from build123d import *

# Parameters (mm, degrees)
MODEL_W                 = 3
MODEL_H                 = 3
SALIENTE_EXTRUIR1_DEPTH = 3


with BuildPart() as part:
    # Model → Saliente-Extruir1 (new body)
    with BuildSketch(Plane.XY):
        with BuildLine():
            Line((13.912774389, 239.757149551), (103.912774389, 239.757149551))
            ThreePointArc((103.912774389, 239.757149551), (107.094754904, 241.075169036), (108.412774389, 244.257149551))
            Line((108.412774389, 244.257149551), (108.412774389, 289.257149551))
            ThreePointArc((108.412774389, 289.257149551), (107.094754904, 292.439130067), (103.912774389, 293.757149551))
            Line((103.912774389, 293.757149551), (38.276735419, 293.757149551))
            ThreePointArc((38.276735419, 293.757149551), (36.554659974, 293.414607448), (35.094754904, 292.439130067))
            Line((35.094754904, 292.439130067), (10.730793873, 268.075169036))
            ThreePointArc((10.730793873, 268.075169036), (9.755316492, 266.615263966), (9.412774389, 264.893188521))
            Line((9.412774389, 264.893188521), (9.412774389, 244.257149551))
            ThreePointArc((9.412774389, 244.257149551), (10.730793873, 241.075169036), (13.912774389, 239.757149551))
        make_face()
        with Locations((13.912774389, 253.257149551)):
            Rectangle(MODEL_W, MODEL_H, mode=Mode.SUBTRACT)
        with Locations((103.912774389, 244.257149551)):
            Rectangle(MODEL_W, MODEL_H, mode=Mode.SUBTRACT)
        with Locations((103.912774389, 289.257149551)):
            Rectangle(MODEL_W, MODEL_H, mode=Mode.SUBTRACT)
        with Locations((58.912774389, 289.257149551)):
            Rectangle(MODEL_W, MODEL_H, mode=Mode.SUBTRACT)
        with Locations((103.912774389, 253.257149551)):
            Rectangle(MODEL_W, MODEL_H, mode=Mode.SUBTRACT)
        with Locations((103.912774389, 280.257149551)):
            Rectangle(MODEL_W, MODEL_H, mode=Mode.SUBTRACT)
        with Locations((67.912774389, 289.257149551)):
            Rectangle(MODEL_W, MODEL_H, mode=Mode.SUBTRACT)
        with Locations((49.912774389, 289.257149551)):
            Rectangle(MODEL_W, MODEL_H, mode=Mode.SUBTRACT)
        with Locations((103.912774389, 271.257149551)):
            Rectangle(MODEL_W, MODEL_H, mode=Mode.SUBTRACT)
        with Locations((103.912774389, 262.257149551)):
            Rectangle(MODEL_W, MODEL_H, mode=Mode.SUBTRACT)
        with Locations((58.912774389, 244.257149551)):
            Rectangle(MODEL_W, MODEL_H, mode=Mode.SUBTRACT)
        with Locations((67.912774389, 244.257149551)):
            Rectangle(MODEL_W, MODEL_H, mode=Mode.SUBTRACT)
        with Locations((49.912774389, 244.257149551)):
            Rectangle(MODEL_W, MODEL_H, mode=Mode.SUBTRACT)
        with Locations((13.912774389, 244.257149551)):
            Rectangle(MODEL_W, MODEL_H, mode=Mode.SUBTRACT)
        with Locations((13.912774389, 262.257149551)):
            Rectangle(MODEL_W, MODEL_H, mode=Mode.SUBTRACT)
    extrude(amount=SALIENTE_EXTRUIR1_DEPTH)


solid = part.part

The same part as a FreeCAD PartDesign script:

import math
import FreeCAD as App
import Part
import Sketcher

V = App.Vector
Q = App.Units.Quantity


def add_polygon(sketch, points):
    """Adds a closed chain of lines whose ends are joined by coincident constraints."""
    first, n = sketch.GeometryCount, len(points)
    for a, b in zip(points, points[1:] + points[:1]):
        sketch.addGeometry(Part.LineSegment(App.Vector(*a, 0), App.Vector(*b, 0)), False)
    for i in range(n):
        sketch.addConstraint(Sketcher.Constraint("Coincident", first + i, 2, first + (i + 1) % n, 1))

doc = App.newDocument("Part")
body = doc.addObject("PartDesign::Body", "Body")

# Sketch on XY plane
sketch1 = body.newObject("Sketcher::SketchObject", "Sketch")
sketch1.AttachmentSupport = (doc.getObject("XY_Plane"), [""])
sketch1.MapMode = "FlatFace"
sketch1.addGeometry(Part.LineSegment(V(13.9, 239.8, 0), V(103.9, 239.8, 0)), False)  # 0
sketch1.addGeometry(Part.ArcOfCircle(Part.Circle(V(103.9, 244.3, 0), V(0, 0, 1), 4.5), math.radians(-90), math.radians(0)), False)  # 1
sketch1.addGeometry(Part.LineSegment(V(108.4, 244.3, 0), V(108.4, 289.3, 0)), False)  # 2
sketch1.addGeometry(Part.ArcOfCircle(Part.Circle(V(103.9, 289.3, 0), V(0, 0, 1), 4.5), math.radians(0), math.radians(90)), False)  # 3
sketch1.addGeometry(Part.LineSegment(V(103.9, 293.8, 0), V(38.3, 293.8, 0)), False)  # 4
sketch1.addGeometry(Part.ArcOfCircle(Part.Circle(V(38.3, 289.3, 0), V(0, 0, 1), 4.5), math.radians(90), math.radians(135)), False)  # 5
sketch1.addGeometry(Part.LineSegment(V(35.1, 292.4, 0), V(10.7, 268.1, 0)), False)  # 6
sketch1.addGeometry(Part.ArcOfCircle(Part.Circle(V(13.9, 264.9, 0), V(0, 0, 1), 4.5), math.radians(135), math.radians(180)), False)  # 7
sketch1.addGeometry(Part.LineSegment(V(9.4, 264.9, 0), V(9.4, 244.3, 0)), False)  # 8
sketch1.addGeometry(Part.ArcOfCircle(Part.Circle(V(13.9, 244.3, 0), V(0, 0, 1), 4.5), math.radians(180), math.radians(270)), False)  # 9
add_polygon(sketch1, [(15.4, 242.8), (12.4, 242.8), (12.4, 245.8), (15.4, 245.8)])  # lines 10-13
add_polygon(sketch1, [(15.4, 251.8), (12.4, 251.8), (12.4, 254.8), (15.4, 254.8)])  # lines 14-17
add_polygon(sketch1, [(51.4, 242.8), (48.4, 242.8), (48.4, 245.8), (51.4, 245.8)])  # lines 18-21
add_polygon(sketch1, [(15.4, 260.8), (12.4, 260.8), (12.4, 263.8), (15.4, 263.8)])  # lines 22-25
add_polygon(sketch1, [(60.4, 242.8), (57.4, 242.8), (57.4, 245.8), (60.4, 245.8)])  # lines 26-29
add_polygon(sketch1, [(69.4, 242.8), (66.4, 242.8), (66.4, 245.8), (69.4, 245.8)])  # lines 30-33
add_polygon(sketch1, [(105.4, 242.8), (102.4, 242.8), (102.4, 245.8), (105.4, 245.8)])  # lines 34-37
add_polygon(sketch1, [(105.4, 251.8), (102.4, 251.8), (102.4, 254.8), (105.4, 254.8)])  # lines 38-41
add_polygon(sketch1, [(105.4, 260.8), (102.4, 260.8), (102.4, 263.8), (105.4, 263.8)])  # lines 42-45
add_polygon(sketch1, [(51.4, 287.8), (48.4, 287.8), (48.4, 290.8), (51.4, 290.8)])  # lines 46-49
add_polygon(sketch1, [(105.4, 269.8), (102.4, 269.8), (102.4, 272.8), (105.4, 272.8)])  # lines 50-53
add_polygon(sketch1, [(60.4, 287.8), (57.4, 287.8), (57.4, 290.8), (60.4, 290.8)])  # lines 54-57
add_polygon(sketch1, [(69.4, 287.8), (66.4, 287.8), (66.4, 290.8), (69.4, 290.8)])  # lines 58-61
add_polygon(sketch1, [(105.4, 278.8), (102.4, 278.8), (102.4, 281.8), (105.4, 281.8)])  # lines 62-65
add_polygon(sketch1, [(105.4, 287.8), (102.4, 287.8), (102.4, 290.8), (105.4, 290.8)])  # lines 66-69
sketch1.addConstraint(Sketcher.Constraint("Tangent", 0, 2, 1, 1))
sketch1.addConstraint(Sketcher.Constraint("Tangent", 1, 2, 2, 1))
sketch1.addConstraint(Sketcher.Constraint("Tangent", 2, 2, 3, 1))
sketch1.addConstraint(Sketcher.Constraint("Tangent", 3, 2, 4, 1))
sketch1.addConstraint(Sketcher.Constraint("Tangent", 4, 2, 5, 1))
sketch1.addConstraint(Sketcher.Constraint("Tangent", 5, 2, 6, 1))
sketch1.addConstraint(Sketcher.Constraint("Tangent", 6, 2, 7, 1))
sketch1.addConstraint(Sketcher.Constraint("Tangent", 7, 2, 8, 1))
sketch1.addConstraint(Sketcher.Constraint("Tangent", 8, 2, 9, 1))
sketch1.addConstraint(Sketcher.Constraint("Tangent", 9, 2, 0, 1))
sketch1.addConstraint(Sketcher.Constraint("Horizontal", 0))
sketch1.addConstraint(Sketcher.Constraint("Vertical", 2))
sketch1.addConstraint(Sketcher.Constraint("Horizontal", 4))
sketch1.addConstraint(Sketcher.Constraint("Vertical", 8))
sketch1.addConstraint(Sketcher.Constraint("Horizontal", 10))
sketch1.addConstraint(Sketcher.Constraint("Vertical", 11))
sketch1.addConstraint(Sketcher.Constraint("Horizontal", 12))
sketch1.addConstraint(Sketcher.Constraint("Vertical", 13))
sketch1.addConstraint(Sketcher.Constraint("Horizontal", 14))
sketch1.addConstraint(Sketcher.Constraint("Vertical", 15))
sketch1.addConstraint(Sketcher.Constraint("Horizontal", 16))
sketch1.addConstraint(Sketcher.Constraint("Vertical", 17))
sketch1.addConstraint(Sketcher.Constraint("Horizontal", 18))
sketch1.addConstraint(Sketcher.Constraint("Vertical", 19))
sketch1.addConstraint(Sketcher.Constraint("Horizontal", 20))
sketch1.addConstraint(Sketcher.Constraint("Vertical", 21))
sketch1.addConstraint(Sketcher.Constraint("Horizontal", 22))
sketch1.addConstraint(Sketcher.Constraint("Vertical", 23))
sketch1.addConstraint(Sketcher.Constraint("Horizontal", 24))
sketch1.addConstraint(Sketcher.Constraint("Vertical", 25))
sketch1.addConstraint(Sketcher.Constraint("Horizontal", 26))
sketch1.addConstraint(Sketcher.Constraint("Vertical", 27))
sketch1.addConstraint(Sketcher.Constraint("Horizontal", 28))
sketch1.addConstraint(Sketcher.Constraint("Vertical", 29))
sketch1.addConstraint(Sketcher.Constraint("Horizontal", 30))
sketch1.addConstraint(Sketcher.Constraint("Vertical", 31))
sketch1.addConstraint(Sketcher.Constraint("Horizontal", 32))
sketch1.addConstraint(Sketcher.Constraint("Vertical", 33))
sketch1.addConstraint(Sketcher.Constraint("Horizontal", 34))
sketch1.addConstraint(Sketcher.Constraint("Vertical", 35))
sketch1.addConstraint(Sketcher.Constraint("Horizontal", 36))
sketch1.addConstraint(Sketcher.Constraint("Vertical", 37))
sketch1.addConstraint(Sketcher.Constraint("Horizontal", 38))
sketch1.addConstraint(Sketcher.Constraint("Vertical", 39))
sketch1.addConstraint(Sketcher.Constraint("Horizontal", 40))
sketch1.addConstraint(Sketcher.Constraint("Vertical", 41))
sketch1.addConstraint(Sketcher.Constraint("Horizontal", 42))
sketch1.addConstraint(Sketcher.Constraint("Vertical", 43))
sketch1.addConstraint(Sketcher.Constraint("Horizontal", 44))
sketch1.addConstraint(Sketcher.Constraint("Vertical", 45))
sketch1.addConstraint(Sketcher.Constraint("Horizontal", 46))
sketch1.addConstraint(Sketcher.Constraint("Vertical", 47))
sketch1.addConstraint(Sketcher.Constraint("Horizontal", 48))
sketch1.addConstraint(Sketcher.Constraint("Vertical", 49))
sketch1.addConstraint(Sketcher.Constraint("Horizontal", 50))
sketch1.addConstraint(Sketcher.Constraint("Vertical", 51))
sketch1.addConstraint(Sketcher.Constraint("Horizontal", 52))
sketch1.addConstraint(Sketcher.Constraint("Vertical", 53))
sketch1.addConstraint(Sketcher.Constraint("Horizontal", 54))
sketch1.addConstraint(Sketcher.Constraint("Vertical", 55))
sketch1.addConstraint(Sketcher.Constraint("Horizontal", 56))
sketch1.addConstraint(Sketcher.Constraint("Vertical", 57))
sketch1.addConstraint(Sketcher.Constraint("Horizontal", 58))
sketch1.addConstraint(Sketcher.Constraint("Vertical", 59))
sketch1.addConstraint(Sketcher.Constraint("Horizontal", 60))
sketch1.addConstraint(Sketcher.Constraint("Vertical", 61))
sketch1.addConstraint(Sketcher.Constraint("Horizontal", 62))
sketch1.addConstraint(Sketcher.Constraint("Vertical", 63))
sketch1.addConstraint(Sketcher.Constraint("Horizontal", 64))
sketch1.addConstraint(Sketcher.Constraint("Vertical", 65))
sketch1.addConstraint(Sketcher.Constraint("Horizontal", 66))
sketch1.addConstraint(Sketcher.Constraint("Vertical", 67))
sketch1.addConstraint(Sketcher.Constraint("Horizontal", 68))
sketch1.addConstraint(Sketcher.Constraint("Vertical", 69))
sketch1.addConstraint(Sketcher.Constraint("Equal", 1, 3))
sketch1.addConstraint(Sketcher.Constraint("Equal", 3, 5))
sketch1.addConstraint(Sketcher.Constraint("Equal", 5, 7))
sketch1.addConstraint(Sketcher.Constraint("Equal", 7, 9))
sketch1.addConstraint(Sketcher.Constraint("Horizontal", 13, 2, 18, 2))
sketch1.addConstraint(Sketcher.Constraint("Horizontal", 12, 2, 19, 2))
sketch1.addConstraint(Sketcher.Constraint("Horizontal", 21, 2, 26, 2))
sketch1.addConstraint(Sketcher.Constraint("Horizontal", 20, 2, 27, 2))
sketch1.addConstraint(Sketcher.Constraint("Horizontal", 29, 2, 30, 2))
sketch1.addConstraint(Sketcher.Constraint("Horizontal", 28, 2, 31, 2))
sketch1.addConstraint(Sketcher.Constraint("Horizontal", 33, 2, 34, 2))
sketch1.addConstraint(Sketcher.Constraint("Horizontal", 32, 2, 35, 2))
sketch1.addConstraint(Sketcher.Constraint("Horizontal", 17, 2, 38, 2))
sketch1.addConstraint(Sketcher.Constraint("Horizontal", 16, 2, 39, 2))
sketch1.addConstraint(Sketcher.Constraint("Horizontal", 25, 2, 42, 2))
sketch1.addConstraint(Sketcher.Constraint("Horizontal", 24, 2, 43, 2))
sketch1.addConstraint(Sketcher.Constraint("Horizontal", 49, 2, 54, 2))
sketch1.addConstraint(Sketcher.Constraint("Horizontal", 48, 2, 55, 2))
sketch1.addConstraint(Sketcher.Constraint("Horizontal", 57, 2, 58, 2))
sketch1.addConstraint(Sketcher.Constraint("Horizontal", 56, 2, 59, 2))
sketch1.addConstraint(Sketcher.Constraint("Horizontal", 61, 2, 66, 2))
sketch1.addConstraint(Sketcher.Constraint("Horizontal", 60, 2, 67, 2))
sketch1.addConstraint(Sketcher.Constraint("Vertical", 11, 2, 14, 2))
sketch1.addConstraint(Sketcher.Constraint("Vertical", 13, 2, 16, 2))
sketch1.addConstraint(Sketcher.Constraint("Vertical", 15, 2, 22, 2))
sketch1.addConstraint(Sketcher.Constraint("Vertical", 17, 2, 24, 2))
sketch1.addConstraint(Sketcher.Constraint("Vertical", 35, 2, 38, 2))
sketch1.addConstraint(Sketcher.Constraint("Vertical", 37, 2, 40, 2))
sketch1.addConstraint(Sketcher.Constraint("Vertical", 39, 2, 42, 2))
sketch1.addConstraint(Sketcher.Constraint("Vertical", 41, 2, 44, 2))
sketch1.addConstraint(Sketcher.Constraint("Vertical", 19, 2, 46, 2))
sketch1.addConstraint(Sketcher.Constraint("Vertical", 21, 2, 48, 2))
sketch1.addConstraint(Sketcher.Constraint("Vertical", 43, 2, 50, 2))
sketch1.addConstraint(Sketcher.Constraint("Vertical", 45, 2, 52, 2))
sketch1.addConstraint(Sketcher.Constraint("Vertical", 27, 2, 54, 2))
sketch1.addConstraint(Sketcher.Constraint("Vertical", 29, 2, 56, 2))
sketch1.addConstraint(Sketcher.Constraint("Vertical", 31, 2, 58, 2))
sketch1.addConstraint(Sketcher.Constraint("Vertical", 33, 2, 60, 2))
sketch1.addConstraint(Sketcher.Constraint("Vertical", 51, 2, 62, 2))
sketch1.addConstraint(Sketcher.Constraint("Vertical", 53, 2, 64, 2))
sketch1.addConstraint(Sketcher.Constraint("Vertical", 63, 2, 66, 2))
sketch1.addConstraint(Sketcher.Constraint("Vertical", 65, 2, 68, 2))
sketch1.addConstraint(Sketcher.Constraint("Equal", 16, 18))
sketch1.addConstraint(Sketcher.Constraint("Equal", 24, 26))
sketch1.addConstraint(Sketcher.Constraint("Equal", 28, 30))
sketch1.addConstraint(Sketcher.Constraint("Equal", 32, 34))
sketch1.addConstraint(Sketcher.Constraint("Equal", 68, 11))
sketch1.addConstraint(Sketcher.Constraint("Equal", 13, 15))
sketch1.addConstraint(Sketcher.Constraint("Equal", 21, 23))
sketch1.addConstraint(Sketcher.Constraint("Equal", 45, 47))
sketch1.addConstraint(Sketcher.Constraint("Equal", 49, 51))
sketch1.addConstraint(Sketcher.Constraint("Equal", 61, 63))
sketch1.addConstraint(Sketcher.Constraint("Radius", 1, 4.5))
sketch1.addConstraint(Sketcher.Constraint("DistanceX", 0, 1, 0, 2, 90.0))
sketch1.addConstraint(Sketcher.Constraint("DistanceX", 10, 2, 10, 1, 3.0))
sketch1.addConstraint(Sketcher.Constraint("DistanceY", 2, 1, 2, 2, 45.0))
sketch1.addConstraint(Sketcher.Constraint("Angle", 6, Q("-135 deg")))
sketch1.addConstraint(Sketcher.Constraint("DistanceX", 4, 2, 4, 1, 65.636039))
sketch1.addConstraint(Sketcher.Constraint("DistanceY", -1, 1, 1, 3, 244.25715))
sketch1.addConstraint(Sketcher.Constraint("DistanceY", -1, 1, 10, 2, 242.75715))
sketch1.addConstraint(Sketcher.Constraint("DistanceY", -1, 1, 14, 2, 251.75715))
sketch1.addConstraint(Sketcher.Constraint("DistanceY", -1, 1, 22, 2, 260.75715))
sketch1.addConstraint(Sketcher.Constraint("DistanceY", -1, 1, 46, 2, 287.75715))
sketch1.addConstraint(Sketcher.Constraint("DistanceY", -1, 1, 50, 2, 269.75715))
sketch1.addConstraint(Sketcher.Constraint("DistanceY", -1, 1, 62, 2, 278.75715))
sketch1.addConstraint(Sketcher.Constraint("DistanceX", -1, 1, 1, 3, 103.912774))
sketch1.addConstraint(Sketcher.Constraint("DistanceX", -1, 1, 10, 2, 12.412774))
sketch1.addConstraint(Sketcher.Constraint("DistanceX", -1, 1, 18, 2, 48.412774))
sketch1.addConstraint(Sketcher.Constraint("DistanceX", -1, 1, 26, 2, 57.412774))
sketch1.addConstraint(Sketcher.Constraint("DistanceX", -1, 1, 30, 2, 66.412774))
sketch1.addConstraint(Sketcher.Constraint("DistanceX", -1, 1, 34, 2, 102.412774))
pad1 = body.newObject("PartDesign::Pad", "Pad")
pad1.Profile = sketch1
pad1.Length = 3

doc.recompute()
